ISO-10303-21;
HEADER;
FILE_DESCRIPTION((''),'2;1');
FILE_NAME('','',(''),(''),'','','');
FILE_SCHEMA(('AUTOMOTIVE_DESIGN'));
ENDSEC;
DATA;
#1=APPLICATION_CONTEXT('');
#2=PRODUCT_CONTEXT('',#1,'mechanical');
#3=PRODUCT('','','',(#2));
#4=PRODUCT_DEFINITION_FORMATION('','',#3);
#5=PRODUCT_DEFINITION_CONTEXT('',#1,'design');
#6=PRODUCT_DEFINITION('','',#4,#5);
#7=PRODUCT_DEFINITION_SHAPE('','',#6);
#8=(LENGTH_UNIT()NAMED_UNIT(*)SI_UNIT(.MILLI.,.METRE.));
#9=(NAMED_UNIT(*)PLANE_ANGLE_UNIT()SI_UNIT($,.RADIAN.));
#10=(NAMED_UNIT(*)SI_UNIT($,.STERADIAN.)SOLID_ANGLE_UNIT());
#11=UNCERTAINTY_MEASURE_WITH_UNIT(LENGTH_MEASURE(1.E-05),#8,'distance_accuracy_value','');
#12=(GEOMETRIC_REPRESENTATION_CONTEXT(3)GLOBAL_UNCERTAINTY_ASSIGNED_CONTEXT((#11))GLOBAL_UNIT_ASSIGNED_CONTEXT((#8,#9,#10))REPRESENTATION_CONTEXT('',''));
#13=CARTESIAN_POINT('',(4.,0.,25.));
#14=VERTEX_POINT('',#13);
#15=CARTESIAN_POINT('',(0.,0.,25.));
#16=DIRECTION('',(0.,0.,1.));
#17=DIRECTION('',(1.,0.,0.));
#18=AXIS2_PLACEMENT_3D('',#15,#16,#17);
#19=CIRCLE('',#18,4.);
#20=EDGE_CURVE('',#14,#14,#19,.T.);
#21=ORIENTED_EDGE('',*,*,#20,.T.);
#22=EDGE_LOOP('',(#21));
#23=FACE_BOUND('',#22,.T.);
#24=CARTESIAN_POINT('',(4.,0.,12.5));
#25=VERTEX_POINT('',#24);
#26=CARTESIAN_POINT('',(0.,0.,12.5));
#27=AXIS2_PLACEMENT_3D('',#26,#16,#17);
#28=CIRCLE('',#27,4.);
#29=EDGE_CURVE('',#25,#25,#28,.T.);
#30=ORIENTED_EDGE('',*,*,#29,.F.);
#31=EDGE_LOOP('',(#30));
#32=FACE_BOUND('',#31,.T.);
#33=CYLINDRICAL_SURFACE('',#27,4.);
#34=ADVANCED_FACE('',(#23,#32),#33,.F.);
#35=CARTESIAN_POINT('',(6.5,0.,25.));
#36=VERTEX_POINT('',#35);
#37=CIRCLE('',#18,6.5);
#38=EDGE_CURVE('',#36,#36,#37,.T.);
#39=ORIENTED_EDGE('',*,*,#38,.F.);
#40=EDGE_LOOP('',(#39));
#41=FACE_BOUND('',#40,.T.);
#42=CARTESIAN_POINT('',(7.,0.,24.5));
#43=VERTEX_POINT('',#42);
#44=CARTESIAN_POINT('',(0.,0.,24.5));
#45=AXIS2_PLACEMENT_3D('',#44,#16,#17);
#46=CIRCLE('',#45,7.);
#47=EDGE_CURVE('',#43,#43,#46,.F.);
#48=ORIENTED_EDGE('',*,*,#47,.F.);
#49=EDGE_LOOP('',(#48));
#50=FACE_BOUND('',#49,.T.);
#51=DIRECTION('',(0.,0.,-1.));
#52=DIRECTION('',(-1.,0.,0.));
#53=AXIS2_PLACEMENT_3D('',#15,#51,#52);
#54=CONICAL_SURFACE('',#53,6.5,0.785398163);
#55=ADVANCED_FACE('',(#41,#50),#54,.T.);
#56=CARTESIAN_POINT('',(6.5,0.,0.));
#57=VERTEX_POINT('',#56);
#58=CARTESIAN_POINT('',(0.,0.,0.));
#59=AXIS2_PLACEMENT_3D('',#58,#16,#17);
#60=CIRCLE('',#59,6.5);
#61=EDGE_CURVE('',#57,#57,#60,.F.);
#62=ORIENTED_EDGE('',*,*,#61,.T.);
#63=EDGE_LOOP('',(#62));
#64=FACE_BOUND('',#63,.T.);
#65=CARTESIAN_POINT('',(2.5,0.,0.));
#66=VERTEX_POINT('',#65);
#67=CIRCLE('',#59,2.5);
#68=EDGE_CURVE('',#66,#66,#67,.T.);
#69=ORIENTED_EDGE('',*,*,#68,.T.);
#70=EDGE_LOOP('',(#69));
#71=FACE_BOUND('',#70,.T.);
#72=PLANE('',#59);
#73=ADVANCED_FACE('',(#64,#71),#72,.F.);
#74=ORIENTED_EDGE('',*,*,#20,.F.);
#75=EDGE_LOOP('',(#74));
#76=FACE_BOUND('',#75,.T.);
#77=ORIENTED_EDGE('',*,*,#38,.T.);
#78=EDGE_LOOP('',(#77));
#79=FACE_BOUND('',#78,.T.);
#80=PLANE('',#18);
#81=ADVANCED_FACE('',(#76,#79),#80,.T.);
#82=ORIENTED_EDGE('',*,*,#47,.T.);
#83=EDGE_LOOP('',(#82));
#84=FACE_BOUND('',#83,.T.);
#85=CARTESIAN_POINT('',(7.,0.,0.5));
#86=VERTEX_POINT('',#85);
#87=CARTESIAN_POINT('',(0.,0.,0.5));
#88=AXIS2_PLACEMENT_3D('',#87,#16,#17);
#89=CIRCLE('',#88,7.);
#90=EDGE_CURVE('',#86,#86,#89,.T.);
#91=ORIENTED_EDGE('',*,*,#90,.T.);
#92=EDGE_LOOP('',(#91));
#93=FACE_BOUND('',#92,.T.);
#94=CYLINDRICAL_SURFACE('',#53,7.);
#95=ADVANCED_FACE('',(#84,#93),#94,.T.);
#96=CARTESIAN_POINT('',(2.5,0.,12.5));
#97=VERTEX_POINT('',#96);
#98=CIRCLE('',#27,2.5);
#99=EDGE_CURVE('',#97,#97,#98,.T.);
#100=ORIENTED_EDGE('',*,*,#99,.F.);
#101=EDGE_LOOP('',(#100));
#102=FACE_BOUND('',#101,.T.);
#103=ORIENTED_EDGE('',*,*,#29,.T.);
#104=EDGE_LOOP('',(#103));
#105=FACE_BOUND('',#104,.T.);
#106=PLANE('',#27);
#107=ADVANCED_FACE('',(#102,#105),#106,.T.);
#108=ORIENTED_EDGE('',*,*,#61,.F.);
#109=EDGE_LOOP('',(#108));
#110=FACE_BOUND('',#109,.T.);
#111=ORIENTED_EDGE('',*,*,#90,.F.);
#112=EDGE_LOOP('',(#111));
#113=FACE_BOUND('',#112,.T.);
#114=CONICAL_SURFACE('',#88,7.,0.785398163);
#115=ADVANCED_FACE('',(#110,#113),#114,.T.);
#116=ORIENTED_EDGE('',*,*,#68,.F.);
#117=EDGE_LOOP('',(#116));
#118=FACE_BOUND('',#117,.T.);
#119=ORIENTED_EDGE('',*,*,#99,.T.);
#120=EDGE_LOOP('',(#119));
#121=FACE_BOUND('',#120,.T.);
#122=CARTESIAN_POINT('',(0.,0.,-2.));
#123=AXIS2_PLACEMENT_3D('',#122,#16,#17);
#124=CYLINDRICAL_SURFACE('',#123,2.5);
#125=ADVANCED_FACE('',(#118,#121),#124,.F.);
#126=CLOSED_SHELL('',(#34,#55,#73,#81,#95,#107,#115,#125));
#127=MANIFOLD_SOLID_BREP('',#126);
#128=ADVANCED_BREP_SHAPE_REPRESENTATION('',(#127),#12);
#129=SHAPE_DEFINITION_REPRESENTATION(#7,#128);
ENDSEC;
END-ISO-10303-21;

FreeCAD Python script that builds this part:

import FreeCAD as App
import Part
import Sketcher

V = App.Vector


def edges_at(feature, points):
    """Names of the edges that pass closest to the given points."""
    edges = feature.Shape.Edges
    near = lambda p: min(range(len(edges)), key=lambda i: edges[i].distToShape(Part.Vertex(*p))[0])
    return sorted({f"Edge{near(p) + 1}" for p in points})

doc = App.newDocument("Part")
body = doc.addObject("PartDesign::Body", "Body")

sketch1 = body.newObject("Sketcher::SketchObject", "Sketch")
sketch1.AttachmentSupport = (doc.getObject("XY_Plane"), [""])
sketch1.MapMode = "FlatFace"
sketch1.addGeometry(Part.Circle(V(0, 0, 0), V(0, 0, 1), 7), False)
sketch1.addConstraint([
    Sketcher.Constraint("Coincident", 0, 3, -1, 1),
    Sketcher.Constraint("Diameter", 0, 14.0),
])
pad1 = body.newObject("PartDesign::Pad", "Pad")
pad1.Profile = sketch1
pad1.Length = 25

sketch2 = body.newObject("Sketcher::SketchObject", "Sketch001")
sketch2.AttachmentSupport = (doc.getObject("XY_Plane"), [""])
sketch2.MapMode = "FlatFace"
sketch2.AttachmentOffset = App.Placement(V(0, 0, 25), App.Rotation())
sketch2.addGeometry(Part.Circle(V(0, 0, 0), V(0, 0, 1), 4), False)
sketch2.addConstraint([
    Sketcher.Constraint("Coincident", 0, 3, -1, 1),
    Sketcher.Constraint("Diameter", 0, 8.0),
])
pocket1 = body.newObject("PartDesign::Pocket", "Pocket")
pocket1.Profile = sketch2
pocket1.Length = 12.5

sketch3 = body.newObject("Sketcher::SketchObject", "Sketch002")
sketch3.AttachmentSupport = (doc.getObject("XY_Plane"), [""])
sketch3.MapMode = "FlatFace"
sketch3.AttachmentOffset = App.Placement(V(0, 0, 12.5), App.Rotation())
sketch3.addGeometry(Part.Circle(V(0, 0, 0), V(0, 0, 1), 2.5), False)
sketch3.addConstraint([
    Sketcher.Constraint("Coincident", 0, 3, -1, 1),
    Sketcher.Constraint("Diameter", 0, 5.0),
])
pocket2 = body.newObject("PartDesign::Pocket", "Pocket001")
pocket2.Profile = sketch3
pocket2.Length = 14.5
doc.recompute()

chamfer = body.newObject("PartDesign::Chamfer", "Chamfer")
chamfer.Base = (pocket2, edges_at(pocket2, [(-7, 0, 0), (-7, 0, 25)]))
chamfer.Size = 0.5

doc.recompute()
